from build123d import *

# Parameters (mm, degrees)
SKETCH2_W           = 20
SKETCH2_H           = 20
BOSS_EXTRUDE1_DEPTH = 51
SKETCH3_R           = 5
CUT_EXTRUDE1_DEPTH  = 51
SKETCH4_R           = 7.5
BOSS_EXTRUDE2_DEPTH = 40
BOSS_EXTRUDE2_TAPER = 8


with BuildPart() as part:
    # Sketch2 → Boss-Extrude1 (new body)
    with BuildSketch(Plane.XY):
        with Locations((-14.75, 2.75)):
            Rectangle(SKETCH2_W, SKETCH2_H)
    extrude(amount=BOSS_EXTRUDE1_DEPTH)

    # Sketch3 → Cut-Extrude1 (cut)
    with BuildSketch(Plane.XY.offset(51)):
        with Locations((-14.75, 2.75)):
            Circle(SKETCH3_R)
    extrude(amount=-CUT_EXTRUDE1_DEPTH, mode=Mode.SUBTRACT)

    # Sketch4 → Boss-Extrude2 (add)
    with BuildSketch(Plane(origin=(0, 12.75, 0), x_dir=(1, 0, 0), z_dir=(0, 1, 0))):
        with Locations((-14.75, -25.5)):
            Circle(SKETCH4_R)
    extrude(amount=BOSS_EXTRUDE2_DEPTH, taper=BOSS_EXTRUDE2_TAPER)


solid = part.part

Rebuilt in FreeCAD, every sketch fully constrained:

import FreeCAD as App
import Part
import Sketcher
Q = App.Units.Quantity


def add_polygon(sketch, points):
    """Adds a closed chain of lines whose ends are joined by coincident constraints."""
    first, n = sketch.GeometryCount, len(points)
    for a, b in zip(points, points[1:] + points[:1]):
        sketch.addGeometry(Part.LineSegment(App.Vector(*a, 0), App.Vector(*b, 0)), False)
    for i in range(n):
        sketch.addConstraint(Sketcher.Constraint("Coincident", first + i, 2, first + (i + 1) % n, 1))

doc = App.newDocument("Part")
params = doc.addObject("Spreadsheet::Sheet", "Params")
for row, (alias, value) in enumerate([
    ("sketch1_width", "20 mm"),
    ("pad1_length", "51 mm"),
    ("sketch2_diameter", "10 mm"),
    ("pocket1_length", "51 mm"),
    ("sketch3_diameter", "15 mm"),
    ("pad2_length", "40 mm"),
    ("pad2_taper", "-8 deg"),
], start=1):
    params.set(f"A{row}", alias)
    params.set(f"B{row}", "=" + value)
    params.setAlias(f"B{row}", alias)

body = doc.addObject("PartDesign::Body", "Body")

sketch1 = doc.addObject("Sketcher::SketchObject", "Sketch")
body.addObject(sketch1)
sketch1.AttachmentSupport = (doc.XY_Plane, [""])
sketch1.MapMode = "FlatFace"
add_polygon(sketch1, [(-25, 13), (-25, -7), (-5, -7), (-5, 13)])
sketch1.addConstraint(Sketcher.Constraint("Vertical", 0))
sketch1.addConstraint(Sketcher.Constraint("Horizontal", 1))
sketch1.addConstraint(Sketcher.Constraint("Vertical", 2))
sketch1.addConstraint(Sketcher.Constraint("Horizontal", 3))
sketch1.addConstraint(Sketcher.Constraint("Equal", 3, 0))
sketch1.addConstraint(Sketcher.Constraint("DistanceX", 1, 1, 1, 2, Q("20 mm")))
sketch1.addConstraint(Sketcher.Constraint("DistanceX", 0, 2, -1, 1, Q("24.75 mm")))
sketch1.addConstraint(Sketcher.Constraint("DistanceY", 0, 2, -1, 1, Q("7.25 mm")))
sketch1.setExpression("Constraints[9]", "Params.sketch1_width")
pad1 = doc.addObject("PartDesign::Pad", "Pad")
body.addObject(pad1)
pad1.Profile = sketch1
pad1.setExpression("Length", "Params.pad1_length")

sketch2 = doc.addObject("Sketcher::SketchObject", "Sketch001")
body.addObject(sketch2)
sketch2.AttachmentSupport = (doc.XY_Plane, [""])
sketch2.MapMode = "FlatFace"
sketch2.AttachmentOffset = App.Placement(App.Vector(0, 0, 51), App.Rotation())
sketch2.addGeometry(Part.Circle(App.Vector(-15, 3, 0), App.Vector(0, 0, 1), 5), False)
sketch2.addConstraint(Sketcher.Constraint("Diameter", 0, Q("10 mm")))
sketch2.addConstraint(Sketcher.Constraint("DistanceX", 0, 3, -1, 1, Q("14.75 mm")))
sketch2.addConstraint(Sketcher.Constraint("DistanceY", -1, 1, 0, 3, Q("2.75 mm")))
sketch2.setExpression("Constraints[0]", "Params.sketch2_diameter")
pocket1 = doc.addObject("PartDesign::Pocket", "Pocket")
body.addObject(pocket1)
pocket1.Profile = sketch2
pocket1.setExpression("Length", "Params.pocket1_length")

sketch3 = doc.addObject("Sketcher::SketchObject", "Sketch002")
body.addObject(sketch3)
sketch3.AttachmentSupport = (doc.XZ_Plane, [""])
sketch3.MapMode = "FlatFace"
sketch3.AttachmentOffset = App.Placement(App.Vector(0, 0, -12.75), App.Rotation())
sketch3.addGeometry(Part.Circle(App.Vector(-15, 26, 0), App.Vector(0, 0, 1), 8), False)
sketch3.addConstraint(Sketcher.Constraint("Diameter", 0, Q("15 mm")))
sketch3.addConstraint(Sketcher.Constraint("DistanceY", -1, 1, 0, 3, Q("25.5 mm")))
sketch3.addConstraint(Sketcher.Constraint("DistanceX", 0, 3, -1, 1, Q("14.75 mm")))
sketch3.setExpression("Constraints[0]", "Params.sketch3_diameter")
pad2 = doc.addObject("PartDesign::Pad", "Pad001")
body.addObject(pad2)
pad2.Profile = sketch3
pad2.setExpression("Length", "Params.pad2_length")
pad2.Reversed = True
pad2.setExpression("TaperAngle", "Params.pad2_taper")

doc.recompute()
